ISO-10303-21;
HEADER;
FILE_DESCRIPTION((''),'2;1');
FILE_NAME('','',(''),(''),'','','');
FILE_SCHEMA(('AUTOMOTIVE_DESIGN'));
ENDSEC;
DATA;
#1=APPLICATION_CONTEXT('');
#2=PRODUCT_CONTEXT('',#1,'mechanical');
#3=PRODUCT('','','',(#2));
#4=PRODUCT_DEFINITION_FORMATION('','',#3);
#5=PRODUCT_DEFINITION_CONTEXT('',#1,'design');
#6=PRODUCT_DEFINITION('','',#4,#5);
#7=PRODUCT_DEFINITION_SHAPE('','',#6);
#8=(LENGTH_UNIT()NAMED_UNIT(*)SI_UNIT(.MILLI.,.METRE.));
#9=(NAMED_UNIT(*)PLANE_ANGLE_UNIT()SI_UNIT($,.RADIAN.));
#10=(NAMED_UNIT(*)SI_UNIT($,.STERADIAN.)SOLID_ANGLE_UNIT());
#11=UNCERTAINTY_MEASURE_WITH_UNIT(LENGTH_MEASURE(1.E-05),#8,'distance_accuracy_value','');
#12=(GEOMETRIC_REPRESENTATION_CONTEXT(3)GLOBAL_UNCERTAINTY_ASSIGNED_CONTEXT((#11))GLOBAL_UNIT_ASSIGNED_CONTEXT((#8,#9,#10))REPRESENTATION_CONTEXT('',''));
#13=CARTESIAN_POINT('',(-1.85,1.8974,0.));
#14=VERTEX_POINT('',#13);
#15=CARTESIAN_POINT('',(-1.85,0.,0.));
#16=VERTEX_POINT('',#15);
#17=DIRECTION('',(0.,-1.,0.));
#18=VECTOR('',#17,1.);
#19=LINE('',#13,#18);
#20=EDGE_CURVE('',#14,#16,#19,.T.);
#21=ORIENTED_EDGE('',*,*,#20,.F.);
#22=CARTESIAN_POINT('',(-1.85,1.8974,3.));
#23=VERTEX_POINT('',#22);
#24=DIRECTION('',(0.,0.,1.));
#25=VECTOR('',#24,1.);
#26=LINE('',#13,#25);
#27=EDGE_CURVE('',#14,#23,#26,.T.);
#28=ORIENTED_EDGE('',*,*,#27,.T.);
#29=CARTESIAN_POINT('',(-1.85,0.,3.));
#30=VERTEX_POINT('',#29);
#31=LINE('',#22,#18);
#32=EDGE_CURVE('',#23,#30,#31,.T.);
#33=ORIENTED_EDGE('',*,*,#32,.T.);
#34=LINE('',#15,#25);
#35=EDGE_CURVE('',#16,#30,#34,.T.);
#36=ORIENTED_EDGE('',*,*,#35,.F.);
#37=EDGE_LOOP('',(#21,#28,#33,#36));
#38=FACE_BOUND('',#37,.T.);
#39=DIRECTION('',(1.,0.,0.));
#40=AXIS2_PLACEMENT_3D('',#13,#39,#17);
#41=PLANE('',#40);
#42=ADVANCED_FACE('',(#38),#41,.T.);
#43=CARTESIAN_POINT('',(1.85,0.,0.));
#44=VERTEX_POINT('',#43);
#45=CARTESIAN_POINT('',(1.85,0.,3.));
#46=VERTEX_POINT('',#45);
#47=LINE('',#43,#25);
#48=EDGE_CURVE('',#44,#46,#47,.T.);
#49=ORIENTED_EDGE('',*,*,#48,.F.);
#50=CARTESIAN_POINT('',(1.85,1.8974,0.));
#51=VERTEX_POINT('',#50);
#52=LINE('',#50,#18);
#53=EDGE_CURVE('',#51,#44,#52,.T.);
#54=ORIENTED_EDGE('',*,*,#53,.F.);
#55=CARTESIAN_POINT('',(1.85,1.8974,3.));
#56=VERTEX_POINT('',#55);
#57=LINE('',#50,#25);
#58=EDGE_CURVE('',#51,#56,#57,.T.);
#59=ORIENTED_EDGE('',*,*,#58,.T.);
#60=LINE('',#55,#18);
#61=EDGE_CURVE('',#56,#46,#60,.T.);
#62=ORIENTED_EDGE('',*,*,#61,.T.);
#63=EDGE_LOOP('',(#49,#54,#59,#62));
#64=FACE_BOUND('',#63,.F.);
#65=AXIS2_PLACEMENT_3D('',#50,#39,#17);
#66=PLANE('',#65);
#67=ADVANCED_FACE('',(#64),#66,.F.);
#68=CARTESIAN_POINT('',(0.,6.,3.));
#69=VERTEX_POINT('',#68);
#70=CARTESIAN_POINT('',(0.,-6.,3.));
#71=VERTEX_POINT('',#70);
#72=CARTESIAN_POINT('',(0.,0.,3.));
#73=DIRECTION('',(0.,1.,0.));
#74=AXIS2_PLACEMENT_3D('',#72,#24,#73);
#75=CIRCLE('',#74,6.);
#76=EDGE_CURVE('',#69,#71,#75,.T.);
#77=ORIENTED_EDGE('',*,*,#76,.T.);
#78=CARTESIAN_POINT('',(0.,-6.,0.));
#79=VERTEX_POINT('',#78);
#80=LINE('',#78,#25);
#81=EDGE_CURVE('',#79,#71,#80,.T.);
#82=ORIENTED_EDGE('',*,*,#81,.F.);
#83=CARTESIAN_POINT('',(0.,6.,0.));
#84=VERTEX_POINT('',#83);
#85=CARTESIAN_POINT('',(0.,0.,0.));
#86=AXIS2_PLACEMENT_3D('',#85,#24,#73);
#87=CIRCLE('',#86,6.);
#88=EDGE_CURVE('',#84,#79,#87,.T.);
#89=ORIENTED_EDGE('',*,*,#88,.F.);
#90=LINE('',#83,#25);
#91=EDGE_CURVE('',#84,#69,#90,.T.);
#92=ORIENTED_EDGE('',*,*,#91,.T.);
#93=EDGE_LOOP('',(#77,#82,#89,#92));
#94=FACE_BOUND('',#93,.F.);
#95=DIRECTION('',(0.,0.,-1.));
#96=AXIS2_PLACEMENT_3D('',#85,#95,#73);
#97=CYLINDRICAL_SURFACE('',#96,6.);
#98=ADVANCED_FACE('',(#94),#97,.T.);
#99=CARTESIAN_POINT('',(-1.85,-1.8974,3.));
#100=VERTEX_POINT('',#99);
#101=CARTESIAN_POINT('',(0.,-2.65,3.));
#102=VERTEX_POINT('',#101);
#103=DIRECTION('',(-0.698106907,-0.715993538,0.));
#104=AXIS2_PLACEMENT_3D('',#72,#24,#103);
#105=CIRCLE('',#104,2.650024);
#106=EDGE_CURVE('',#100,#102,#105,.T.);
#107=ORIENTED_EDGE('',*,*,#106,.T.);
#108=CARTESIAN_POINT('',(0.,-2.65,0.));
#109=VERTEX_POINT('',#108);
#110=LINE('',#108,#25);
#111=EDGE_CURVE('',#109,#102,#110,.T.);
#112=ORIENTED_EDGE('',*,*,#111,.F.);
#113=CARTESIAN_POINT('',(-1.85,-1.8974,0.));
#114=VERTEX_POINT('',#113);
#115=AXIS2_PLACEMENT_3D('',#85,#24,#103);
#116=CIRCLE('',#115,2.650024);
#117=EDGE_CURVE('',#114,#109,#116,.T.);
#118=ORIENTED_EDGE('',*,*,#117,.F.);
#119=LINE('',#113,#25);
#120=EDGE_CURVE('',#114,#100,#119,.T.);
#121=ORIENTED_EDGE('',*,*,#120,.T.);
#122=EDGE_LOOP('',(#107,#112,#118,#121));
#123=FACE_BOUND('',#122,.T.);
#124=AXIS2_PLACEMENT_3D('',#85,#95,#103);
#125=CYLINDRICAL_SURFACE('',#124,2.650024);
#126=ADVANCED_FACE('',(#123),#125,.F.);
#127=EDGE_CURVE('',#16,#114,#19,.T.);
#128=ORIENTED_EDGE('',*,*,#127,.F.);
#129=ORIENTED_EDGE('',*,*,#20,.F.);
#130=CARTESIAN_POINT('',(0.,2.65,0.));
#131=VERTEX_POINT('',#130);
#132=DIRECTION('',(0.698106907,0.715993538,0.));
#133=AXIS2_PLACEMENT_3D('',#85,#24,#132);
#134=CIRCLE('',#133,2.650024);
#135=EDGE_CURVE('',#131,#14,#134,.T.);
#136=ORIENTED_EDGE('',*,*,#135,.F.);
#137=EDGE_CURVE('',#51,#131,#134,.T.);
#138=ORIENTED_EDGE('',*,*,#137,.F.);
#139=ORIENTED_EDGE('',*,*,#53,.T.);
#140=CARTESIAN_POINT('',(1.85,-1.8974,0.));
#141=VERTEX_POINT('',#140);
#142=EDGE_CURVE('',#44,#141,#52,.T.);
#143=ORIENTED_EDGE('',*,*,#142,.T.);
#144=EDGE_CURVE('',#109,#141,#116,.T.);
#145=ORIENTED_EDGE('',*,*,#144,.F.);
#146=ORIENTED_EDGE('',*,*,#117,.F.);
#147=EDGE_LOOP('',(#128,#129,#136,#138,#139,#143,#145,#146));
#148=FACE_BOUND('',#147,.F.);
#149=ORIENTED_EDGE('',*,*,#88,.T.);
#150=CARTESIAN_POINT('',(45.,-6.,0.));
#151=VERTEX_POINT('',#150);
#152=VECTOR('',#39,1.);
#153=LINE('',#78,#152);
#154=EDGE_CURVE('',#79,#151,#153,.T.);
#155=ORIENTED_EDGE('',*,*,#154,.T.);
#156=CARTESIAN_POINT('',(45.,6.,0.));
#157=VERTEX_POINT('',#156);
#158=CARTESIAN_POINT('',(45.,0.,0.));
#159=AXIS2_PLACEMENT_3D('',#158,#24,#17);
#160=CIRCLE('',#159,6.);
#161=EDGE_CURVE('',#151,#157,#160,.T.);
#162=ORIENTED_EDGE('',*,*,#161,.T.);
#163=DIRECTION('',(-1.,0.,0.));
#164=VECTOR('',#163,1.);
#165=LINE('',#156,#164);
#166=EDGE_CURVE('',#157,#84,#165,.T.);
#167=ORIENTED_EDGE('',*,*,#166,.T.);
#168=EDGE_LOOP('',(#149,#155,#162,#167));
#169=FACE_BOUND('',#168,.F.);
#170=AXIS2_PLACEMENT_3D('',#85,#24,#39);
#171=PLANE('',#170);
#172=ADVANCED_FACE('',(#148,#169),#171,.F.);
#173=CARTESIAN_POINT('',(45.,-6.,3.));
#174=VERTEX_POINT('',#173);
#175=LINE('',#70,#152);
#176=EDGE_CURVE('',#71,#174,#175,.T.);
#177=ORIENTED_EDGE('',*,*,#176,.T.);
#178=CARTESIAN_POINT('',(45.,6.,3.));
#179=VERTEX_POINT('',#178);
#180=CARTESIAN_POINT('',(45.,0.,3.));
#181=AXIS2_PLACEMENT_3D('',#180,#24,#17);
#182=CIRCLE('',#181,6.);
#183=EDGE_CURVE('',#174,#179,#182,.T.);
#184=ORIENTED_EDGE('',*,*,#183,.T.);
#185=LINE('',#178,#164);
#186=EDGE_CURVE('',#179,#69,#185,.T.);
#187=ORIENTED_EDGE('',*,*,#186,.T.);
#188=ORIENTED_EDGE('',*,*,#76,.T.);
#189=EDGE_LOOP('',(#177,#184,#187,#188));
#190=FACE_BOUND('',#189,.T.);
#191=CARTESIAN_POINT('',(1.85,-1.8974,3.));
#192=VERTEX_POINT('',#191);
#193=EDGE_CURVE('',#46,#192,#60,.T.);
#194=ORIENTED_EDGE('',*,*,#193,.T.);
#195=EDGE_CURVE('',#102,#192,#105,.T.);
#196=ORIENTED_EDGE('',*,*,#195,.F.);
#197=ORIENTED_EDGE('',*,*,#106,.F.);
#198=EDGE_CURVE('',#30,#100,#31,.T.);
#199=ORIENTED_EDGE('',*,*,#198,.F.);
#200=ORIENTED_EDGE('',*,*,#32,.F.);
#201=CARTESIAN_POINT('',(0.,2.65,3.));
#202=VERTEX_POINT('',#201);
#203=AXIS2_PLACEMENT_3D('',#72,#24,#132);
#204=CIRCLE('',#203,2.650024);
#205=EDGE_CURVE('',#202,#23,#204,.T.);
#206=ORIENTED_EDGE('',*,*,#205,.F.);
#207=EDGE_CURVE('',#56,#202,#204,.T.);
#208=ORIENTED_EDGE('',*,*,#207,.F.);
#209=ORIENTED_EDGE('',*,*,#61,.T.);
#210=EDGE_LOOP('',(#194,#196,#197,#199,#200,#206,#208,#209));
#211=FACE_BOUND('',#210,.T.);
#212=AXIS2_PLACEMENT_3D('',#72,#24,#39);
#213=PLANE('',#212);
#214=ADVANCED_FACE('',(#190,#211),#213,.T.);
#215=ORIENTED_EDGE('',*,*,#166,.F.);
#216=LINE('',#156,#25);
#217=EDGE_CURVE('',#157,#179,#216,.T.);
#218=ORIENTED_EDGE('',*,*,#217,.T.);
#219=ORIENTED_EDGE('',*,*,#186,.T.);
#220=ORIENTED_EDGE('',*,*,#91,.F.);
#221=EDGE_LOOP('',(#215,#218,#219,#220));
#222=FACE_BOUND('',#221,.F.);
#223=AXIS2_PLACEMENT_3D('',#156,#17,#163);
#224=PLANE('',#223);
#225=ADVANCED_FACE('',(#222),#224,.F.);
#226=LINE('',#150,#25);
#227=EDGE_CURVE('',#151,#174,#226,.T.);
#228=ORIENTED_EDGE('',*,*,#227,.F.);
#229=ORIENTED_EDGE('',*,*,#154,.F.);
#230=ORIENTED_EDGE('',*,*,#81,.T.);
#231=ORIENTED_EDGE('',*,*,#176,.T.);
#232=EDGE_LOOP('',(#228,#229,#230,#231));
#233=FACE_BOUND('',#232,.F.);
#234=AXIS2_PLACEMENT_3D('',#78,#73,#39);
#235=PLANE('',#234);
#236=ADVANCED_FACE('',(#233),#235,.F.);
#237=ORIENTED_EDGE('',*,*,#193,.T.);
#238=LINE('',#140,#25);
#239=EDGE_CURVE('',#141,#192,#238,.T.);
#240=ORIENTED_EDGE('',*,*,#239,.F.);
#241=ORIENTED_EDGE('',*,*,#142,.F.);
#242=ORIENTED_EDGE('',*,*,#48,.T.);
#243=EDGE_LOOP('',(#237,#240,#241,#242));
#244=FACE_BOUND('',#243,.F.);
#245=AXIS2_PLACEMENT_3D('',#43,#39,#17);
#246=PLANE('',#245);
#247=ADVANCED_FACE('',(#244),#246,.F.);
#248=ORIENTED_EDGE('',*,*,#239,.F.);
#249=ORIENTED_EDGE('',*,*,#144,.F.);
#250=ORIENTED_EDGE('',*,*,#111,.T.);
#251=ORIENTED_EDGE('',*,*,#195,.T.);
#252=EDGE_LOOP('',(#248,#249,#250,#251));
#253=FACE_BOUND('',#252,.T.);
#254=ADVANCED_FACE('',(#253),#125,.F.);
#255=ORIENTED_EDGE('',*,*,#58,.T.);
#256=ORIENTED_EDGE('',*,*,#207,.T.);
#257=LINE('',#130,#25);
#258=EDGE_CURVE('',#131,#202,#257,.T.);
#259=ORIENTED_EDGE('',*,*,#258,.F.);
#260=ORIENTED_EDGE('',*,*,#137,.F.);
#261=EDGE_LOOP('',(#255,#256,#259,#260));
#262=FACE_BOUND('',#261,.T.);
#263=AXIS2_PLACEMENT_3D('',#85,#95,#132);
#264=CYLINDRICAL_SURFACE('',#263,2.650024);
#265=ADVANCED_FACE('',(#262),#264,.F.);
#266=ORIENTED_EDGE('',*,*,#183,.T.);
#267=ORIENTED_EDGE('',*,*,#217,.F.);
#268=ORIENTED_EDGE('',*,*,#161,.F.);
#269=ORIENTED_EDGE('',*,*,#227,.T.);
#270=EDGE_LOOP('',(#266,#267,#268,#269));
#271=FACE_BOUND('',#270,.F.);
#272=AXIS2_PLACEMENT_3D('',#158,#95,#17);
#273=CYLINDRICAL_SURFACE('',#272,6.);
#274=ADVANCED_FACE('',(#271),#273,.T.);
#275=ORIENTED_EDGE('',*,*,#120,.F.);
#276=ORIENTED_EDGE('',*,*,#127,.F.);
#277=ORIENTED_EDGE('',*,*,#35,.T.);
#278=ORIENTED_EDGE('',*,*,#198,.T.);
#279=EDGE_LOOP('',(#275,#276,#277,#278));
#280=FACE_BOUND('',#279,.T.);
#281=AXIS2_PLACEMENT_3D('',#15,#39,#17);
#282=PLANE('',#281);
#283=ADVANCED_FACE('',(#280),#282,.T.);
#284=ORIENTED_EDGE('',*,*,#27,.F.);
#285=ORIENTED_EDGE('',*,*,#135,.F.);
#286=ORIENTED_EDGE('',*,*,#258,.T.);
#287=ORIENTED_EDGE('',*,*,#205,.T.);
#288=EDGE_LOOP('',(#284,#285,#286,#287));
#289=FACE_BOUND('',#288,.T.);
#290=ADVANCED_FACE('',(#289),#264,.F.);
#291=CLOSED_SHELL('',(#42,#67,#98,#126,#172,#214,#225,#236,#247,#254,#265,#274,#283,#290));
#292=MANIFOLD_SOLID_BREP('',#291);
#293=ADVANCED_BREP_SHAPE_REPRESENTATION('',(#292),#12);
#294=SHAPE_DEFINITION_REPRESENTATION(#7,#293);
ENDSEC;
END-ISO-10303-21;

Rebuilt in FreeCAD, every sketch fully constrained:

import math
import FreeCAD as App
import Part
import Sketcher

V = App.Vector

doc = App.newDocument("Part")
body = doc.addObject("PartDesign::Body", "Body")

# Sketch on XY plane
sketch1 = body.newObject("Sketcher::SketchObject", "Sketch")
sketch1.AttachmentSupport = (doc.getObject("XY_Plane"), [""])
sketch1.MapMode = "FlatFace"
sketch1.addGeometry([
    Part.ArcOfCircle(Part.Circle(V(0, 0, 0), V(0, 0, 1), 6), math.radians(90), math.radians(270)),  # 0
    Part.LineSegment(V(0, -6, 0), V(45, -6, 0)),  # 1
    Part.ArcOfCircle(Part.Circle(V(45, 0, 0), V(0, 0, 1), 6), math.radians(-90), math.radians(90)),  # 2
    Part.LineSegment(V(45, 6, 0), V(0, 6, 0)),  # 3
    Part.ArcOfCircle(Part.Circle(V(0, 0, 0), V(0, 0, 1), 2.7), math.radians(46), math.radians(134)),  # 4
    Part.LineSegment(V(1.9, 1.9, 0), V(1.9, -1.9, 0)),  # 5
    Part.ArcOfCircle(Part.Circle(V(0, 0, 0), V(0, 0, 1), 2.7), math.radians(-134), math.radians(-46)),  # 6
    Part.LineSegment(V(-1.9, -1.9, 0), V(-1.9, 1.9, 0)),  # 7
], False)
sketch1.addConstraint([
    Sketcher.Constraint("Tangent", 0, 2, 1, 1),
    Sketcher.Constraint("Tangent", 1, 2, 2, 1),
    Sketcher.Constraint("Tangent", 2, 2, 3, 1),
    Sketcher.Constraint("Tangent", 3, 2, 0, 1),
    Sketcher.Constraint("Coincident", 4, 1, 5, 1),
    Sketcher.Constraint("Coincident", 5, 2, 6, 2),
    Sketcher.Constraint("Coincident", 6, 1, 7, 1),
    Sketcher.Constraint("Coincident", 7, 2, 4, 2),
    Sketcher.Constraint("Horizontal", 1),
    Sketcher.Constraint("Horizontal", 3),
    Sketcher.Constraint("Vertical", 5),
    Sketcher.Constraint("Vertical", 7),
    Sketcher.Constraint("Coincident", 0, 3, -1, 1),
    Sketcher.Constraint("Coincident", 4, 3, -1, 1),
    Sketcher.Constraint("Coincident", 6, 3, -1, 1),
    Sketcher.Constraint("Equal", 4, 6),
    Sketcher.Constraint("Horizontal", 5, 2, 6, 1),
    Sketcher.Constraint("Radius", 0, 6.0),
    Sketcher.Constraint("DistanceX", 1, 1, 1, 2, 45.0),
    Sketcher.Constraint("Radius", 4, 2.65),
    Sketcher.Constraint("DistanceX", 6, 1, 5, 2, 3.7),
])
pad1 = body.newObject("PartDesign::Pad", "Pad")
pad1.Profile = sketch1
pad1.Length = 3

doc.recompute()
